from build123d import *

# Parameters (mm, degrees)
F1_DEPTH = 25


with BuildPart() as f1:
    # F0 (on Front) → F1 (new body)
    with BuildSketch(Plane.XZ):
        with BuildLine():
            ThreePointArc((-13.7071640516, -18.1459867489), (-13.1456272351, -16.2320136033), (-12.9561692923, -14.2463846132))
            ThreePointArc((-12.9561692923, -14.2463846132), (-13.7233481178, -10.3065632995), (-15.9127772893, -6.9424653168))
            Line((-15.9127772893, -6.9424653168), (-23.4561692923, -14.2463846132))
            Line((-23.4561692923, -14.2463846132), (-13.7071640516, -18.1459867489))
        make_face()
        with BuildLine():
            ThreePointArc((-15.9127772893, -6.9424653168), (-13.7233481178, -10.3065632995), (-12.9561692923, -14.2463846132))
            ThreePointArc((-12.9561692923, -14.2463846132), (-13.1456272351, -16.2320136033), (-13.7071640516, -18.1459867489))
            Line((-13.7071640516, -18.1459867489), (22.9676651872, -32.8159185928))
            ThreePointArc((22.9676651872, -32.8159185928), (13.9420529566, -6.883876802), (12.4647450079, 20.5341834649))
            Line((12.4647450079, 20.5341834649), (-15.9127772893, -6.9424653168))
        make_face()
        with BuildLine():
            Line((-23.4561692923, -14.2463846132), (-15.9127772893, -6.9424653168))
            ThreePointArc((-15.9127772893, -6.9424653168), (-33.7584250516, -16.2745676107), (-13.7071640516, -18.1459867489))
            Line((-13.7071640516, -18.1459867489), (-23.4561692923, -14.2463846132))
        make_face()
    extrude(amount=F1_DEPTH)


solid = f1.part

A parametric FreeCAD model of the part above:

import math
import FreeCAD as App
import Part
import Sketcher
from FreeCAD import Vector

doc = App.newDocument("Part")
body = doc.addObject("PartDesign::Body", "Body")

# Sketch on XZ plane
sketch1 = doc.addObject("Sketcher::SketchObject", "Sketch")
body.addObject(sketch1)
sketch1.AttachmentSupport = (doc.XZ_Plane, [""])
sketch1.MapMode = "FlatFace"
sketch1.addGeometry(Part.LineSegment(Vector(-13.707164, -18.145987, 0), Vector(22.967665, -32.815919, 0)), False)
sketch1.addGeometry(Part.ArcOfCircle(Part.Circle(Vector(110.09644, 12.045831, 0), Vector(0, 0, 1), 98), math.radians(175.031052), math.radians(207.243494)), False)
sketch1.addGeometry(Part.LineSegment(Vector(12.464745, 20.534183, 0), Vector(-15.912777, -6.942465, 0)), False)
sketch1.addGeometry(Part.ArcOfCircle(Part.Circle(Vector(-23.456169, -14.246385, 0), Vector(0, 0, 1), 10.5), math.radians(44.075955), math.radians(338.19859)), False)
sketch1.addConstraint(Sketcher.Constraint("Coincident", 0, 2, 1, 2))
sketch1.addConstraint(Sketcher.Constraint("Coincident", 1, 1, 2, 1))
sketch1.addConstraint(Sketcher.Constraint("Coincident", 2, 2, 3, 1))
sketch1.addConstraint(Sketcher.Constraint("Coincident", 3, 2, 0, 1))
sketch1.addConstraint(Sketcher.Constraint("Equal", 0, 2))
sketch1.addConstraint(Sketcher.Constraint("Radius", 1, 98.0))
sketch1.addConstraint(Sketcher.Constraint("Radius", 3, 10.5))
sketch1.addConstraint(Sketcher.Constraint("Distance", 0, 39.5))
sketch1.addConstraint(Sketcher.Constraint("DistanceX", -1, 1, 1, 3, 110.09644))
sketch1.addConstraint(Sketcher.Constraint("DistanceY", -1, 1, 1, 3, 12.045831))
sketch1.addConstraint(Sketcher.Constraint("DistanceX", 3, 3, -1, 1, 23.456169))
sketch1.addConstraint(Sketcher.Constraint("DistanceY", 0, 2, -1, 1, 32.815919))
sketch1.addConstraint(Sketcher.Constraint("DistanceY", 3, 3, 2, 2, 7.303919))
sketch1.addConstraint(Sketcher.Constraint("DistanceY", 3, 2, 2, 2, 11.203521))
pad1 = doc.addObject("PartDesign::Pad", "Pad")
body.addObject(pad1)
pad1.Profile = sketch1
pad1.Length = 25

doc.recompute()
